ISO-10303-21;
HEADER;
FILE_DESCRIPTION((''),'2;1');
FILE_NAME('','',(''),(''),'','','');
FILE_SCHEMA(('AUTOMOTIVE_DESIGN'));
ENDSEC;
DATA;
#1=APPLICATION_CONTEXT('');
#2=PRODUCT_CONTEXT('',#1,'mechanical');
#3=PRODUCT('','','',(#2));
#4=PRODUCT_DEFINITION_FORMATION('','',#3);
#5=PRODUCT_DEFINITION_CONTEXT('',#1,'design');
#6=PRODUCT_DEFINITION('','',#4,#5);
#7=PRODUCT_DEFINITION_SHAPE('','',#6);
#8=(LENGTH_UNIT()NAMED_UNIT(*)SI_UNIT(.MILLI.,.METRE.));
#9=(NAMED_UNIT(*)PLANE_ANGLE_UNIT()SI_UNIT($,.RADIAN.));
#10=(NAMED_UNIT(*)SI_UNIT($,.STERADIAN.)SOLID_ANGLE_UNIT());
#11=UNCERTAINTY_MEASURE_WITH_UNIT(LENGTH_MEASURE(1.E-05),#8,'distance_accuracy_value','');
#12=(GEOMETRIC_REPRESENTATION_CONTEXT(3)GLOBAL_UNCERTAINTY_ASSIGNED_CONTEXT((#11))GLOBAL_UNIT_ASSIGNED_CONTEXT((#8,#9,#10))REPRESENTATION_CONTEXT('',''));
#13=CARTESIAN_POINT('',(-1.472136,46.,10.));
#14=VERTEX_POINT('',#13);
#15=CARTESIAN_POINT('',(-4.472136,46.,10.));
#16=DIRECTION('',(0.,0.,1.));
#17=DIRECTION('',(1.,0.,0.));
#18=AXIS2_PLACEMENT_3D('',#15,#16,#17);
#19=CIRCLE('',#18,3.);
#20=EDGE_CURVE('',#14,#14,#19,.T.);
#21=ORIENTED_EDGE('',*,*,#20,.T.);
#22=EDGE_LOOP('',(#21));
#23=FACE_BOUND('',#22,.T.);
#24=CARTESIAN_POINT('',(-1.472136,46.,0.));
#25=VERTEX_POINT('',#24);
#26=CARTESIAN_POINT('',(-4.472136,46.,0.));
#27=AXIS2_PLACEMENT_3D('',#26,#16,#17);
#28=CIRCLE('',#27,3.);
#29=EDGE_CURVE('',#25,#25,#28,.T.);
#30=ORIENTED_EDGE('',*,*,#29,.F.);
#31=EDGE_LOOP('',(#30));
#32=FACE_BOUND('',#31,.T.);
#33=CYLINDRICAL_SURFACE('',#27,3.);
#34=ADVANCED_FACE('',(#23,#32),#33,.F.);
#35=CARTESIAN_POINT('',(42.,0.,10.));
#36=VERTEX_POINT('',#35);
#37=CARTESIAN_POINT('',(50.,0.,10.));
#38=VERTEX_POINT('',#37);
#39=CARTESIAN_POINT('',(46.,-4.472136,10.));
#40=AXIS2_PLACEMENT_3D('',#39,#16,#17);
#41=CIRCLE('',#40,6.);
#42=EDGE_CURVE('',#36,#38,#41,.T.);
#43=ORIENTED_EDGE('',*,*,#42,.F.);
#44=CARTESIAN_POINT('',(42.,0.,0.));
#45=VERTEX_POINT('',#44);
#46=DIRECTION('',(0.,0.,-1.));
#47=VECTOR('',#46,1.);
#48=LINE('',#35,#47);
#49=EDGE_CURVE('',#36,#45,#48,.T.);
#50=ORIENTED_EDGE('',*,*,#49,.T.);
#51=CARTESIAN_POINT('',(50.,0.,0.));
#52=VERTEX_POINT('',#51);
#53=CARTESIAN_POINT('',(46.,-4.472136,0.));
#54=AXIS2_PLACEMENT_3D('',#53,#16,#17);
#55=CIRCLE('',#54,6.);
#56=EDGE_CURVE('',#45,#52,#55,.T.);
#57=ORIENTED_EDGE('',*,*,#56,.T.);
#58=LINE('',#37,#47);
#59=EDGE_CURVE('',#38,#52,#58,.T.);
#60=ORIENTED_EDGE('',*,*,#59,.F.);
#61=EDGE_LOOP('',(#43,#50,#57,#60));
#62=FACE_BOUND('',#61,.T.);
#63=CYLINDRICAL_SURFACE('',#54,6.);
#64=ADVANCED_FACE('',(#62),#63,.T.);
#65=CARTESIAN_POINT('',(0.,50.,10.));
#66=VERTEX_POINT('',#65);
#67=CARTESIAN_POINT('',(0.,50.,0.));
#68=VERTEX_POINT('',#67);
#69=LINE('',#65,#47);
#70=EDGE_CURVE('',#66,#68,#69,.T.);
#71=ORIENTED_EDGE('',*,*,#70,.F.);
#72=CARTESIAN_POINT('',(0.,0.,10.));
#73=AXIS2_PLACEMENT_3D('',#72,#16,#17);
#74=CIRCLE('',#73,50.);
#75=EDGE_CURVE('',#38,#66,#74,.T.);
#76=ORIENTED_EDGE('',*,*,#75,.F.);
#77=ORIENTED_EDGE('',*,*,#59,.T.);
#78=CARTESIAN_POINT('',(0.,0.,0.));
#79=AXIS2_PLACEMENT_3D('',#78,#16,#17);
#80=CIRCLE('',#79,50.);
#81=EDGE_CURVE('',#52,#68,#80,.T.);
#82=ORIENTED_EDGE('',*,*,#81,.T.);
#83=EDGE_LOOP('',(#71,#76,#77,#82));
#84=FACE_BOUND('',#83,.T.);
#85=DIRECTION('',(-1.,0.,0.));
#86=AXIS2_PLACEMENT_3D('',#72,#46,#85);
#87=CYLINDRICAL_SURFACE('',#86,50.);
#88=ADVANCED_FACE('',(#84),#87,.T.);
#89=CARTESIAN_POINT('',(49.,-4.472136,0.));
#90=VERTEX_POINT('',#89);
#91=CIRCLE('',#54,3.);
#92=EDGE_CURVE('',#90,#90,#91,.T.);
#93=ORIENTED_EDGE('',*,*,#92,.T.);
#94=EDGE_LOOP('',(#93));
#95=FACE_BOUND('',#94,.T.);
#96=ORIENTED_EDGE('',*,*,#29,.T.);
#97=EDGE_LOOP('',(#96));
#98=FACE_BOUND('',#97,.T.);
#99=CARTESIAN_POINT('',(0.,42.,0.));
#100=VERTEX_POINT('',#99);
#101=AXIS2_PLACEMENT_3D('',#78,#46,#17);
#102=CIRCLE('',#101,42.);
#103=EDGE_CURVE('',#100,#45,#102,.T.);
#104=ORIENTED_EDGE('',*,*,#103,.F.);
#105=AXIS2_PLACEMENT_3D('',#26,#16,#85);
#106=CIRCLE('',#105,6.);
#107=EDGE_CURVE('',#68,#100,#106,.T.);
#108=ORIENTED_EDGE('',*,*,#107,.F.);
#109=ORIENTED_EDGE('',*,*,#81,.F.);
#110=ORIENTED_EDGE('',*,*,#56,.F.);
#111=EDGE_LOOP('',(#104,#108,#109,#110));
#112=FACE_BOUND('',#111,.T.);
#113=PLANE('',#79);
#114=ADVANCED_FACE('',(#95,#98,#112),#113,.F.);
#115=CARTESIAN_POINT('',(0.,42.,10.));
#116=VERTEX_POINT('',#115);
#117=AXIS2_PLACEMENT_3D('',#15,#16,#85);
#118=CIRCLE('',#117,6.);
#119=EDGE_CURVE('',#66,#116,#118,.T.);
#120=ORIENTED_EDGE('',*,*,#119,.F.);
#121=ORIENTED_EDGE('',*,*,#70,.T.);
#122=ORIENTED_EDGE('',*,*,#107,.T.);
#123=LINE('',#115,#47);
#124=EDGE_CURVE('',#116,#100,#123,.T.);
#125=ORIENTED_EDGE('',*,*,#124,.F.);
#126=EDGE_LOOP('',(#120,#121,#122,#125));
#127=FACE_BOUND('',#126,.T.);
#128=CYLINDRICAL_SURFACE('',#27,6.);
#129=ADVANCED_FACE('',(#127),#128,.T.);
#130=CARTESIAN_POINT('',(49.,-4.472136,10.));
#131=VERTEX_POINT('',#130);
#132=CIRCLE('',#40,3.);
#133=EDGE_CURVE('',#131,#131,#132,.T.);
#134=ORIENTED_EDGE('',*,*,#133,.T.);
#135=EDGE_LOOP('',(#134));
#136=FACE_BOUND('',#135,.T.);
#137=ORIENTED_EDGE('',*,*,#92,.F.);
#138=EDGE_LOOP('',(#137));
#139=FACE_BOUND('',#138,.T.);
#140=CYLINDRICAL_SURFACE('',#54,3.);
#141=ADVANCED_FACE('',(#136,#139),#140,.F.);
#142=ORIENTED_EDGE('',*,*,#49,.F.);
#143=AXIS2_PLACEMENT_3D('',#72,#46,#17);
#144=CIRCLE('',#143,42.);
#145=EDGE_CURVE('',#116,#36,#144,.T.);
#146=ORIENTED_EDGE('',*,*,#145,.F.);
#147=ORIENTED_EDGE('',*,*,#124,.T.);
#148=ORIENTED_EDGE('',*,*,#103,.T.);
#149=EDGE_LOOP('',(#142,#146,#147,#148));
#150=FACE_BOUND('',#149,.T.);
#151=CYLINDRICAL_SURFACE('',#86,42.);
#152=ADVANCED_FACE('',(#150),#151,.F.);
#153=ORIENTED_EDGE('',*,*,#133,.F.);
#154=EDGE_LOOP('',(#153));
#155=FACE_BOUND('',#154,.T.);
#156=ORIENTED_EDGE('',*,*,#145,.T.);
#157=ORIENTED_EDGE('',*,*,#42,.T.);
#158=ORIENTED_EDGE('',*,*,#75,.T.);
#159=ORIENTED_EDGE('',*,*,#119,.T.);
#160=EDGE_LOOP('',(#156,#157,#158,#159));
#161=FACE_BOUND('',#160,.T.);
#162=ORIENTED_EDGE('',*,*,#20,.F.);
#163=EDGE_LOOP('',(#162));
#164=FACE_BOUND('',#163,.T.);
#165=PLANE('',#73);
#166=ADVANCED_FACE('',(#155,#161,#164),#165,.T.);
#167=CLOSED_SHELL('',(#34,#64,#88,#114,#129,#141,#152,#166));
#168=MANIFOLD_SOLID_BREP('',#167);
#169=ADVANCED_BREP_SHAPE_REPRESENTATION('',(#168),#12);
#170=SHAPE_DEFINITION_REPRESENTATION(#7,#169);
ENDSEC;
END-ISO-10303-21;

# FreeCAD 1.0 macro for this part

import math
import FreeCAD as App
import Part
import Sketcher

doc = App.newDocument("Part")
body = doc.addObject("PartDesign::Body", "Body")

# Sketch on XY plane
sketch1 = doc.addObject("Sketcher::SketchObject", "Sketch")
body.addObject(sketch1)
sketch1.AttachmentSupport = (doc.XY_Plane, [""])
sketch1.MapMode = "FlatFace"
sketch1.addGeometry([
    Part.LineSegment(App.Vector(0, 50, 0), App.Vector(0, 42, 0)),
    Part.ArcOfCircle(Part.Circle(App.Vector(0, 0, 0), App.Vector(0, 0, 1), 42), math.radians(0), math.radians(90)),
    Part.LineSegment(App.Vector(42, 0, 0), App.Vector(50, 0, 0)),
    Part.ArcOfCircle(Part.Circle(App.Vector(0, 0, 0), App.Vector(0, 0, 1), 50), math.radians(0), math.radians(90)),
], False)
sketch1.addConstraint([
    Sketcher.Constraint("Coincident", 0, 2, 1, 2),
    Sketcher.Constraint("Coincident", 1, 1, 2, 1),
    Sketcher.Constraint("Coincident", 2, 2, 3, 1),
    Sketcher.Constraint("Coincident", 3, 2, 0, 1),
    Sketcher.Constraint("Vertical", 0),
    Sketcher.Constraint("Horizontal", 2),
    Sketcher.Constraint("Coincident", 1, 3, -1, 1),
    Sketcher.Constraint("Coincident", 3, 3, -1, 1),
    Sketcher.Constraint("PointOnObject", 0, 2, -2),
    Sketcher.Constraint("PointOnObject", 1, 1, -1),
    Sketcher.Constraint("Radius", 1, 42.0),
    Sketcher.Constraint("Radius", 3, 50.0),
])
pad1 = doc.addObject("PartDesign::Pad", "Pad")
body.addObject(pad1)
pad1.Profile = sketch1
pad1.Length = 10

# Sketch on XY plane
sketch2 = doc.addObject("Sketcher::SketchObject", "Sketch001")
body.addObject(sketch2)
sketch2.AttachmentSupport = (doc.XY_Plane, [""])
sketch2.MapMode = "FlatFace"
sketch2.AttachmentOffset = App.Placement(App.Vector(0, 0, 10), App.Rotation())
sketch2.addGeometry([
    Part.LineSegment(App.Vector(0, 42, 0), App.Vector(0, 50, 0)),
    Part.ArcOfCircle(Part.Circle(App.Vector(-4.472136, 46, 0), App.Vector(0, 0, 1), 6), math.radians(41.810315), math.radians(318.189685)),
    Part.LineSegment(App.Vector(50, 0, 0), App.Vector(42, 0, 0)),
    Part.ArcOfCircle(Part.Circle(App.Vector(46, -4.472136, 0), App.Vector(0, 0, 1), 6), math.radians(131.810315), math.radians(408.189685)),
], False)
sketch2.addConstraint([
    Sketcher.Constraint("Coincident", 0, 1, 1, 2),
    Sketcher.Constraint("Coincident", 1, 1, 0, 2),
    Sketcher.Constraint("Coincident", 2, 1, 3, 2),
    Sketcher.Constraint("Coincident", 3, 1, 2, 2),
    Sketcher.Constraint("Vertical", 0),
    Sketcher.Constraint("Horizontal", 2),
    Sketcher.Constraint("Equal", 1, 3),
    Sketcher.Constraint("PointOnObject", 0, 1, -2),
    Sketcher.Constraint("PointOnObject", 2, 1, -1),
    Sketcher.Constraint("Equal", 2, 0),
    Sketcher.Constraint("Radius", 1, 6.0),
    Sketcher.Constraint("DistanceX", 2, 2, 2, 1, 8.0),
    Sketcher.Constraint("DistanceY", -1, 1, 1, 3, 46.0),
    Sketcher.Constraint("DistanceX", -1, 1, 3, 3, 46.0),
])
pad2 = doc.addObject("PartDesign::Pad", "Pad001")
body.addObject(pad2)
pad2.Profile = sketch2
pad2.Length = 10
pad2.Reversed = True

# Sketch on XY plane
sketch3 = doc.addObject("Sketcher::SketchObject", "Sketch002")
body.addObject(sketch3)
sketch3.AttachmentSupport = (doc.XY_Plane, [""])
sketch3.MapMode = "FlatFace"
sketch3.AttachmentOffset = App.Placement(App.Vector(0, 0, 10), App.Rotation())
sketch3.addGeometry([
    Part.Circle(App.Vector(46, -4.472136, 0), App.Vector(0, 0, 1), 3),
    Part.Circle(App.Vector(-4.472136, 46, 0), App.Vector(0, 0, 1), 3),
], False)
sketch3.addConstraint([
    Sketcher.Constraint("Equal", 0, 1),
    Sketcher.Constraint("Diameter", 0, 6.0),
    Sketcher.Constraint("DistanceX", -1, 1, 0, 3, 46.0),
    Sketcher.Constraint("DistanceY", -1, 1, 1, 3, 46.0),
    Sketcher.Constraint("DistanceY", 0, 3, -1, 1, 4.472136),
    Sketcher.Constraint("DistanceX", 1, 3, -1, 1, 4.472136),
])
pocket1 = doc.addObject("PartDesign::Pocket", "Pocket")
body.addObject(pocket1)
pocket1.Profile = sketch3
pocket1.Length = 10

doc.recompute()
